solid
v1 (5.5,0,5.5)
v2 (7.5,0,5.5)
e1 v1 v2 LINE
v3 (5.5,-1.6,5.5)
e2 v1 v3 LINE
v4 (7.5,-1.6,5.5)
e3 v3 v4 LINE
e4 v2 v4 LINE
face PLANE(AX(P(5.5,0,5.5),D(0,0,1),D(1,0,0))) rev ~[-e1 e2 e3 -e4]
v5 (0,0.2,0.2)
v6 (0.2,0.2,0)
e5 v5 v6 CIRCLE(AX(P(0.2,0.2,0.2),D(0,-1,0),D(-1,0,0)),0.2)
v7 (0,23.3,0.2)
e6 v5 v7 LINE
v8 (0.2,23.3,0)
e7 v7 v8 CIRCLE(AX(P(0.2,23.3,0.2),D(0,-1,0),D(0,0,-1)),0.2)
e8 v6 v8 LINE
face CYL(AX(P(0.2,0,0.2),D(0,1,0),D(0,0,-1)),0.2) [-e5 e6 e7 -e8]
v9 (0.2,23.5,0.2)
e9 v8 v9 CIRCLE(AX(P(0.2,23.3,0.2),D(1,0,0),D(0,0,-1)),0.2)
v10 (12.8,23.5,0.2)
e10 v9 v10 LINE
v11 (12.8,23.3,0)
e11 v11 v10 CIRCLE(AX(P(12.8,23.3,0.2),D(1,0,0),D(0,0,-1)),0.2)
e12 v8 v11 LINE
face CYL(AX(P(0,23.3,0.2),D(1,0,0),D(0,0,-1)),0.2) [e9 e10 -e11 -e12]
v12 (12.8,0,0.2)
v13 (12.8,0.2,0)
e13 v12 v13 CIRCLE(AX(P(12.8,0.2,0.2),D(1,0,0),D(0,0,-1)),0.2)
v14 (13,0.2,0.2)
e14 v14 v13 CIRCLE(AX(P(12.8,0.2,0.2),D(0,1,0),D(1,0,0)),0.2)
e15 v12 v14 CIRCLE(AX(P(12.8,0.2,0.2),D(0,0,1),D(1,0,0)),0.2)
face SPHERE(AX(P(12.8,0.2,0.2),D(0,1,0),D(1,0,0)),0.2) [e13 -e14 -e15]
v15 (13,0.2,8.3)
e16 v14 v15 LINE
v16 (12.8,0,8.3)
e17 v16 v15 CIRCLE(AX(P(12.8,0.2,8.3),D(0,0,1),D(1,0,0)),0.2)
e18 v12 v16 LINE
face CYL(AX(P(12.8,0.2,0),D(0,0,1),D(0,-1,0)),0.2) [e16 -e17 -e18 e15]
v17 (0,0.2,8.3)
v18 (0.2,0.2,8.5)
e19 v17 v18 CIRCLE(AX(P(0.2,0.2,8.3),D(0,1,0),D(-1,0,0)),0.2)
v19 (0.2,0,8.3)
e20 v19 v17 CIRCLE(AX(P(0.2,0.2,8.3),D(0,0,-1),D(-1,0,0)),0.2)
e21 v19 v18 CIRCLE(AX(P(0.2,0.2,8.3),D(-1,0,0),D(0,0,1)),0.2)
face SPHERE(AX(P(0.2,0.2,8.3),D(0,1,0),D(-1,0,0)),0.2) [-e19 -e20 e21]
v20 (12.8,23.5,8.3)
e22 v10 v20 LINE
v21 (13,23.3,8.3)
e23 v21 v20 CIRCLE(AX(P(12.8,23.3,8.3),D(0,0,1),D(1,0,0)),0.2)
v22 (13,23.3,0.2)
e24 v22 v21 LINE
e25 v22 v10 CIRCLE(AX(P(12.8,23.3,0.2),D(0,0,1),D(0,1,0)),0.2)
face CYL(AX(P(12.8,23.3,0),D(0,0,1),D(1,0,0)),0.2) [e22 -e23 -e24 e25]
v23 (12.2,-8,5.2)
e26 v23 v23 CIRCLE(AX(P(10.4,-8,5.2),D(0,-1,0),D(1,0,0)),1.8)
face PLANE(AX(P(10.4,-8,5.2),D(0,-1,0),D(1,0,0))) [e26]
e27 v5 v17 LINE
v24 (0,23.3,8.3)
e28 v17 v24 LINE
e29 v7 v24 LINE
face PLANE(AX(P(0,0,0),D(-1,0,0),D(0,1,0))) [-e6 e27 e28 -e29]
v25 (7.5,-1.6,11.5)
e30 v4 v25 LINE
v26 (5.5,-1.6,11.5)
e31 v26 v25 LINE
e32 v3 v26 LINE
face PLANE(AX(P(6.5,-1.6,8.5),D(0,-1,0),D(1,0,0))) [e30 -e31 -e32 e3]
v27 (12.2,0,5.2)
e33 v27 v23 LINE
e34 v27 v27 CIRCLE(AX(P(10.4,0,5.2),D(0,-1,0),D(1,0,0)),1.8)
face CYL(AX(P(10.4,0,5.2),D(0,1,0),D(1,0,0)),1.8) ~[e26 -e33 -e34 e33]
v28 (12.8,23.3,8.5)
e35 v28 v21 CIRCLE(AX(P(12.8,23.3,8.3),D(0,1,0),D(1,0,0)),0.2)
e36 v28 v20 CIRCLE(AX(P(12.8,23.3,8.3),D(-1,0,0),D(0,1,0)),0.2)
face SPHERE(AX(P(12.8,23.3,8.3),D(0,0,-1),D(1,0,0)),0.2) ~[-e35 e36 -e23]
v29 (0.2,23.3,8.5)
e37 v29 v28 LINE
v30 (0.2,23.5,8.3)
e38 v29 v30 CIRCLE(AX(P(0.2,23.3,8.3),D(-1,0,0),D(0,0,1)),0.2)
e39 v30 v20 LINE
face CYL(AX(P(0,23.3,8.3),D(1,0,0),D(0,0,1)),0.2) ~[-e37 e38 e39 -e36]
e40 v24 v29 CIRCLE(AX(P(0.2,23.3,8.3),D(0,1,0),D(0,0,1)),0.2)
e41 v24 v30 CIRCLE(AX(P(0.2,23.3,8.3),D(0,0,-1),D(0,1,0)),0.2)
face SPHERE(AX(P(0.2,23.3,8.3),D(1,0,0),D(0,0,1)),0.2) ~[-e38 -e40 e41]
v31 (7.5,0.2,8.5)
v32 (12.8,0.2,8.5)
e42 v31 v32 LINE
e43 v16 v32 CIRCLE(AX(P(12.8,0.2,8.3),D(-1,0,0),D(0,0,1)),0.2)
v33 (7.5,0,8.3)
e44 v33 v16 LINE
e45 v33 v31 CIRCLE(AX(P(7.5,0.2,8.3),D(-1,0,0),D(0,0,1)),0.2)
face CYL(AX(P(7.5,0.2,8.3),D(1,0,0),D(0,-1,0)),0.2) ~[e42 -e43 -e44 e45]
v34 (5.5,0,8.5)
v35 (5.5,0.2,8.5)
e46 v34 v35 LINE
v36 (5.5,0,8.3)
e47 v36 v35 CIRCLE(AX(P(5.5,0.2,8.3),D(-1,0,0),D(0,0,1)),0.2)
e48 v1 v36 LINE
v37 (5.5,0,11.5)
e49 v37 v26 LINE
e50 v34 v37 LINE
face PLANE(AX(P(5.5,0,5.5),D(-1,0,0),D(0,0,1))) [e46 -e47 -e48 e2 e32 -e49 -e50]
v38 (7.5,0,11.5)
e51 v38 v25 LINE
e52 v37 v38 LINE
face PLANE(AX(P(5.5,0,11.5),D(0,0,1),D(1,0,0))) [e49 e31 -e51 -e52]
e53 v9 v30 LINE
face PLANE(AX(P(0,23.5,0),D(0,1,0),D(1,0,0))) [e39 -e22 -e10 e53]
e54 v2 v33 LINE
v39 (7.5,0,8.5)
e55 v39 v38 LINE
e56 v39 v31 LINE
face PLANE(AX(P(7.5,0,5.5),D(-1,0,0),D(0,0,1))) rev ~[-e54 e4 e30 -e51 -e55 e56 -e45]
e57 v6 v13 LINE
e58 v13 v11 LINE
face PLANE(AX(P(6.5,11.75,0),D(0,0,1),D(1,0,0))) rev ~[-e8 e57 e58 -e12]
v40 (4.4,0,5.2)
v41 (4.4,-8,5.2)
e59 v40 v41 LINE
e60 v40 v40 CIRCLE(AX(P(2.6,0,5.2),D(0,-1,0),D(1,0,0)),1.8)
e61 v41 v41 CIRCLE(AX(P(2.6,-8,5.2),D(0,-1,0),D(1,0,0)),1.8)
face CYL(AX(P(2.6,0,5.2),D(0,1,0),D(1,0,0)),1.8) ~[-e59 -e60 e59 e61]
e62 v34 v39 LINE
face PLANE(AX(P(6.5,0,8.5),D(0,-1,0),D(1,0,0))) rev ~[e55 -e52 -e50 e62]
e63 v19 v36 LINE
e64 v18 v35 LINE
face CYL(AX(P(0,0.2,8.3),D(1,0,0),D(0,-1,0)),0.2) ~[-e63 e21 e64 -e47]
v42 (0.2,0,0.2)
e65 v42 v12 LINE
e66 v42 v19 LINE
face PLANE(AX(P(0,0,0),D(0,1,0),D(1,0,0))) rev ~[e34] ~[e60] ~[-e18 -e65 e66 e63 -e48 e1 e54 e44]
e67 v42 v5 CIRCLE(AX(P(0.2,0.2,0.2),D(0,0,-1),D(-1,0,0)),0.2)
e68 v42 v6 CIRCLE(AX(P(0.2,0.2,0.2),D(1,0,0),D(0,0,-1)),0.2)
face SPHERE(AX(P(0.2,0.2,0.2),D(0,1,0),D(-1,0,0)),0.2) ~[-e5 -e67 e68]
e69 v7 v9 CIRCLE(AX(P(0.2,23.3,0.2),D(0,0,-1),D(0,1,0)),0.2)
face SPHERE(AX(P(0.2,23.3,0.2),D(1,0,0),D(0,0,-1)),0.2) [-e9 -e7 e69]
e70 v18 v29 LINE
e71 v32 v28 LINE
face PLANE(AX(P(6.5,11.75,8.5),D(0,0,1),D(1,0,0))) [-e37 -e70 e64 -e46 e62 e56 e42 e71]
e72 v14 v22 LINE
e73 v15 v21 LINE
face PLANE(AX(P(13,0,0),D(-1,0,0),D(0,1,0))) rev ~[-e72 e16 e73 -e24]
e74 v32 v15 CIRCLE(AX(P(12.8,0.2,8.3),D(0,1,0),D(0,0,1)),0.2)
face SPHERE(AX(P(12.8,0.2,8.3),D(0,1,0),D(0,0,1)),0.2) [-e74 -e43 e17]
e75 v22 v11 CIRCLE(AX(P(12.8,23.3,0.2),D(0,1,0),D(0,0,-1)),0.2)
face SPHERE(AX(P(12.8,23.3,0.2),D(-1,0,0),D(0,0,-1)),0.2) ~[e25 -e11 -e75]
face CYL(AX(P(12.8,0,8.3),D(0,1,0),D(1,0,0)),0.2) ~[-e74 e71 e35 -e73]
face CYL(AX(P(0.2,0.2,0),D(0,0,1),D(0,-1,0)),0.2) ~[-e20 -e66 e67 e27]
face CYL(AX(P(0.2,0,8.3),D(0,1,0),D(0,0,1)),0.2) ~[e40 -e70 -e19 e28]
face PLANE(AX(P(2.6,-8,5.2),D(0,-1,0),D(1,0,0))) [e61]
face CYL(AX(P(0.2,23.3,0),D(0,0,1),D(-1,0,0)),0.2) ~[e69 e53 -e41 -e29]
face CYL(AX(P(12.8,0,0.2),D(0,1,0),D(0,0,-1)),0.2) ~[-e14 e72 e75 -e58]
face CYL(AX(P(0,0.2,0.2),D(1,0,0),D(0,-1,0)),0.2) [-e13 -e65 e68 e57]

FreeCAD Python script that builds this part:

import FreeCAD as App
import Part
import Sketcher
from FreeCAD import Vector


def edges_at(feature, points):
    """Names of the edges that pass closest to the given points."""
    edges = feature.Shape.Edges
    near = lambda p: min(range(len(edges)), key=lambda i: edges[i].distToShape(Part.Vertex(*p))[0])
    return sorted({f"Edge{near(p) + 1}" for p in points})


def add_polygon(sketch, points):
    """Adds a closed chain of lines whose ends are joined by coincident constraints."""
    first, n = sketch.GeometryCount, len(points)
    for a, b in zip(points, points[1:] + points[:1]):
        sketch.addGeometry(Part.LineSegment(App.Vector(*a, 0), App.Vector(*b, 0)), False)
    for i in range(n):
        sketch.addConstraint(Sketcher.Constraint("Coincident", first + i, 2, first + (i + 1) % n, 1))

doc = App.newDocument("Part")
body = doc.addObject("PartDesign::Body", "Body")

sketch1 = body.newObject("Sketcher::SketchObject", "Sketch")
sketch1.AttachmentSupport = (doc.getObject("XY_Plane"), [""])
sketch1.MapMode = "FlatFace"
add_polygon(sketch1, [(0, 23.5), (0, 0), (13, 0), (13, 23.5)])
sketch1.addConstraint([
    Sketcher.Constraint("Vertical", 0),
    Sketcher.Constraint("Horizontal", 1),
    Sketcher.Constraint("Vertical", 2),
    Sketcher.Constraint("Horizontal", 3),
    Sketcher.Constraint("Coincident", 0, 2, -1, 1),
    Sketcher.Constraint("DistanceX", 1, 1, 1, 2, 13.0),
    Sketcher.Constraint("DistanceY", 0, 2, 0, 1, 23.5),
])
pad1 = body.newObject("PartDesign::Pad", "Pad")
pad1.Profile = sketch1
pad1.Length = 8.5

sketch2 = body.newObject("Sketcher::SketchObject", "Sketch001")
sketch2.AttachmentSupport = (doc.getObject("XZ_Plane"), [""])
sketch2.MapMode = "FlatFace"
sketch2.addGeometry([
    Part.Circle(Vector(2.6, 5.2, 0), Vector(0, 0, 1), 1.8),
    Part.Circle(Vector(10.4, 5.2, 0), Vector(0, 0, 1), 1.8),
], False)
sketch2.addConstraint([
    Sketcher.Constraint("Equal", 0, 1),
    Sketcher.Constraint("Horizontal", 0, 3, 1, 3),
    Sketcher.Constraint("Diameter", 0, 3.6),
    Sketcher.Constraint("DistanceX", -1, 1, 0, 3, 2.6),
    Sketcher.Constraint("DistanceY", -1, 1, 0, 3, 5.2),
    Sketcher.Constraint("DistanceX", -1, 1, 1, 3, 10.4),
])
pad2 = body.newObject("PartDesign::Pad", "Pad001")
pad2.Profile = sketch2
pad2.Length = 8

sketch3 = body.newObject("Sketcher::SketchObject", "Sketch002")
sketch3.AttachmentSupport = (doc.getObject("XZ_Plane"), [""])
sketch3.MapMode = "FlatFace"
add_polygon(sketch3, [(5.5, 11.5), (5.5, 5.5), (7.5, 5.5), (7.5, 11.5)])
sketch3.addConstraint([
    Sketcher.Constraint("Vertical", 0),
    Sketcher.Constraint("Horizontal", 1),
    Sketcher.Constraint("Vertical", 2),
    Sketcher.Constraint("Horizontal", 3),
    Sketcher.Constraint("DistanceX", 1, 1, 1, 2, 2.0),
    Sketcher.Constraint("DistanceY", 0, 2, 0, 1, 6.0),
    Sketcher.Constraint("DistanceX", -1, 1, 0, 2, 5.5),
    Sketcher.Constraint("DistanceY", -1, 1, 0, 2, 5.5),
])
pad3 = body.newObject("PartDesign::Pad", "Pad002")
pad3.Profile = sketch3
pad3.Length = 1.6
doc.recompute()

fillet = body.newObject("PartDesign::Fillet", "Fillet")
fillet.Base = (pad3, edges_at(pad3, [
    (6.5, 23.5, 0),
    (13, 11.75, 0),
    (0, 11.75, 0),
    (13, 23.5, 4.25),
    (13, 11.75, 8.5),
    (6.5, 23.5, 8.5),
    (0, 11.75, 8.5),
    (0, 23.5, 4.25),
    (0, 0, 4.25),
    (2.75, 0, 8.5),
    (10.25, 0, 8.5),
    (13, 0, 4.25),
    (6.5, 0, 0),
]))
fillet.Radius = 0.2

doc.recompute()
